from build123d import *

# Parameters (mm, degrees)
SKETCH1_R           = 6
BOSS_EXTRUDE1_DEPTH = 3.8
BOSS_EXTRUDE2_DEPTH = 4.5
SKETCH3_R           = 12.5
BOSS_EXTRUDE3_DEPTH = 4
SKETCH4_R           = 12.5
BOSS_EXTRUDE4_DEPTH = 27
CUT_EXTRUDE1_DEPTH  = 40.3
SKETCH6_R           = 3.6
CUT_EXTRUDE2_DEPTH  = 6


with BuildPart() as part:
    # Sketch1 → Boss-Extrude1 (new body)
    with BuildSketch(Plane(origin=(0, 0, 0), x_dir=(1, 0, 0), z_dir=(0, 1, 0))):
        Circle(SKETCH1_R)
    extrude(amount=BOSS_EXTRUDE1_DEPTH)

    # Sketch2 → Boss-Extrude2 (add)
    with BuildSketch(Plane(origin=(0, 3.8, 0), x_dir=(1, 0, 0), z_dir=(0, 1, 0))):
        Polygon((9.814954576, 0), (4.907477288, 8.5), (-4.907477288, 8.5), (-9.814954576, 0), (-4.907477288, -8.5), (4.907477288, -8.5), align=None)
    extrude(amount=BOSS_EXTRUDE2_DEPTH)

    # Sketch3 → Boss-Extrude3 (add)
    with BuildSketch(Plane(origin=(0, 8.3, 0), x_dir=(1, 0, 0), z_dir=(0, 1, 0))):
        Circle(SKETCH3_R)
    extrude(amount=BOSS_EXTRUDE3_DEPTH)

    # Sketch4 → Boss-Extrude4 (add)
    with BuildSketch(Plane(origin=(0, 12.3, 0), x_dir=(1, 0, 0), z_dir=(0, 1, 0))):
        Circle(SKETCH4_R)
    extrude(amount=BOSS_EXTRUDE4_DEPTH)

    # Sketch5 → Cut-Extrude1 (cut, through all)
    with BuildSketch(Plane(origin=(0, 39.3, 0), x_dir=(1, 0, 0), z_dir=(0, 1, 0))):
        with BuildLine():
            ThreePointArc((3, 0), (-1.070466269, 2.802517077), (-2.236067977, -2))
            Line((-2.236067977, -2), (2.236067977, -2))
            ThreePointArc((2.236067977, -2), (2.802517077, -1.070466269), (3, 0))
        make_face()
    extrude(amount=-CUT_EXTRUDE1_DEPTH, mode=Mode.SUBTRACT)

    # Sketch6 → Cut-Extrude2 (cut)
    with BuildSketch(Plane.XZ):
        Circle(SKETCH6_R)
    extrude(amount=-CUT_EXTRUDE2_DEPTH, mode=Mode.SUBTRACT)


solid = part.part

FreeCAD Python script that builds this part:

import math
import FreeCAD as App
import Part
import Sketcher

V = App.Vector
Q = App.Units.Quantity


def add_polygon(sketch, points):
    """Adds a closed chain of lines whose ends are joined by coincident constraints."""
    first, n = sketch.GeometryCount, len(points)
    for a, b in zip(points, points[1:] + points[:1]):
        sketch.addGeometry(Part.LineSegment(App.Vector(*a, 0), App.Vector(*b, 0)), False)
    for i in range(n):
        sketch.addConstraint(Sketcher.Constraint("Coincident", first + i, 2, first + (i + 1) % n, 1))

doc = App.newDocument("Part")
body = doc.addObject("PartDesign::Body", "Body")

sketch1 = doc.addObject("Sketcher::SketchObject", "Sketch")
body.addObject(sketch1)
sketch1.AttachmentSupport = (doc.XZ_Plane, [""])
sketch1.MapMode = "FlatFace"
sketch1.addGeometry(Part.Circle(V(0, 0, 0), V(0, 0, 1), 6), False)
sketch1.addConstraint(Sketcher.Constraint("Coincident", 0, 3, -1, 1))
sketch1.addConstraint(Sketcher.Constraint("Diameter", 0, 12.0))
pad1 = doc.addObject("PartDesign::Pad", "Pad")
body.addObject(pad1)
pad1.Profile = sketch1
pad1.Length = 3.8
pad1.Reversed = True

sketch2 = doc.addObject("Sketcher::SketchObject", "Sketch001")
body.addObject(sketch2)
sketch2.AttachmentSupport = (doc.XZ_Plane, [""])
sketch2.MapMode = "FlatFace"
sketch2.AttachmentOffset = App.Placement(V(0, 0, -3.8), App.Rotation())
add_polygon(sketch2, [(10, 0), (5, -8), (-5, -8), (-10, 0), (-5, 8), (5, 8)])
sketch2.addConstraint(Sketcher.Constraint("Horizontal", 1))
sketch2.addConstraint(Sketcher.Constraint("Horizontal", 4))
sketch2.addConstraint(Sketcher.Constraint("Symmetric", 0, 2, 3, 2, -1, 1))
sketch2.addConstraint(Sketcher.Constraint("Symmetric", 2, 2, 5, 2, -1, 1))
sketch2.addConstraint(Sketcher.Constraint("PointOnObject", 2, 2, -1))
sketch2.addConstraint(Sketcher.Constraint("Parallel", 2, 5))
sketch2.addConstraint(Sketcher.Constraint("Vertical", 1, 2, 3, 2))
sketch2.addConstraint(Sketcher.Constraint("Angle", 0, Q("-120 deg")))
sketch2.addConstraint(Sketcher.Constraint("DistanceY", 1, 2, 3, 2, 17.0))
sketch2.addConstraint(Sketcher.Constraint("DistanceX", 1, 2, 1, 1, 9.814955))
pad2 = doc.addObject("PartDesign::Pad", "Pad001")
body.addObject(pad2)
pad2.Profile = sketch2
pad2.Length = 4.5
pad2.Reversed = True

sketch3 = doc.addObject("Sketcher::SketchObject", "Sketch002")
body.addObject(sketch3)
sketch3.AttachmentSupport = (doc.XZ_Plane, [""])
sketch3.MapMode = "FlatFace"
sketch3.AttachmentOffset = App.Placement(V(0, 0, -8.3), App.Rotation())
sketch3.addGeometry(Part.Circle(V(0, 0, 0), V(0, 0, 1), 12), False)
sketch3.addConstraint(Sketcher.Constraint("Coincident", 0, 3, -1, 1))
sketch3.addConstraint(Sketcher.Constraint("Diameter", 0, 25.0))
pad3 = doc.addObject("PartDesign::Pad", "Pad002")
body.addObject(pad3)
pad3.Profile = sketch3
pad3.Length = 4
pad3.Reversed = True

sketch4 = doc.addObject("Sketcher::SketchObject", "Sketch003")
body.addObject(sketch4)
sketch4.AttachmentSupport = (doc.XZ_Plane, [""])
sketch4.MapMode = "FlatFace"
sketch4.AttachmentOffset = App.Placement(V(0, 0, -12.3), App.Rotation())
sketch4.addGeometry(Part.Circle(V(0, 0, 0), V(0, 0, 1), 12), False)
sketch4.addConstraint(Sketcher.Constraint("Coincident", 0, 3, -1, 1))
sketch4.addConstraint(Sketcher.Constraint("Diameter", 0, 25.0))
pad4 = doc.addObject("PartDesign::Pad", "Pad003")
body.addObject(pad4)
pad4.Profile = sketch4
pad4.Length = 27
pad4.Reversed = True

sketch5 = doc.addObject("Sketcher::SketchObject", "Sketch004")
body.addObject(sketch5)
sketch5.AttachmentSupport = (doc.XZ_Plane, [""])
sketch5.MapMode = "FlatFace"
sketch5.AttachmentOffset = App.Placement(V(0, 0, -39.3), App.Rotation())
sketch5.addGeometry(Part.ArcOfCircle(Part.Circle(V(0, 0, 0), V(0, 0, 1), 3), math.radians(138), math.radians(360)), False)
sketch5.addGeometry(Part.LineSegment(V(-2.2, 2, 0), V(2.2, 2, 0)), False)
sketch5.addGeometry(Part.ArcOfCircle(Part.Circle(V(0, 0, 0), V(0, 0, 1), 3), math.radians(0), math.radians(42)), False)
sketch5.addConstraint(Sketcher.Constraint("Coincident", 0, 1, 1, 1))
sketch5.addConstraint(Sketcher.Constraint("Coincident", 1, 2, 2, 2))
sketch5.addConstraint(Sketcher.Constraint("Tangent", 2, 1, 0, 2))
sketch5.addConstraint(Sketcher.Constraint("Horizontal", 1))
sketch5.addConstraint(Sketcher.Constraint("Coincident", 0, 3, -1, 1))
sketch5.addConstraint(Sketcher.Constraint("Equal", 0, 2))
sketch5.addConstraint(Sketcher.Constraint("PointOnObject", 2, 1, -1))
sketch5.addConstraint(Sketcher.Constraint("Radius", 0, 3.0))
sketch5.addConstraint(Sketcher.Constraint("DistanceY", -1, 1, 0, 1, 2.0))
pocket1 = doc.addObject("PartDesign::Pocket", "Pocket")
body.addObject(pocket1)
pocket1.Profile = sketch5
pocket1.Type = "ThroughAll"
pocket1.Reversed = True

sketch6 = doc.addObject("Sketcher::SketchObject", "Sketch005")
body.addObject(sketch6)
sketch6.AttachmentSupport = (doc.XZ_Plane, [""])
sketch6.MapMode = "FlatFace"
sketch6.addGeometry(Part.Circle(V(0, 0, 0), V(0, 0, 1), 3.6), False)
sketch6.addConstraint(Sketcher.Constraint("Coincident", 0, 3, -1, 1))
sketch6.addConstraint(Sketcher.Constraint("Diameter", 0, 7.2))
pocket2 = doc.addObject("PartDesign::Pocket", "Pocket001")
body.addObject(pocket2)
pocket2.Profile = sketch6
pocket2.Length = 6

doc.recompute()
